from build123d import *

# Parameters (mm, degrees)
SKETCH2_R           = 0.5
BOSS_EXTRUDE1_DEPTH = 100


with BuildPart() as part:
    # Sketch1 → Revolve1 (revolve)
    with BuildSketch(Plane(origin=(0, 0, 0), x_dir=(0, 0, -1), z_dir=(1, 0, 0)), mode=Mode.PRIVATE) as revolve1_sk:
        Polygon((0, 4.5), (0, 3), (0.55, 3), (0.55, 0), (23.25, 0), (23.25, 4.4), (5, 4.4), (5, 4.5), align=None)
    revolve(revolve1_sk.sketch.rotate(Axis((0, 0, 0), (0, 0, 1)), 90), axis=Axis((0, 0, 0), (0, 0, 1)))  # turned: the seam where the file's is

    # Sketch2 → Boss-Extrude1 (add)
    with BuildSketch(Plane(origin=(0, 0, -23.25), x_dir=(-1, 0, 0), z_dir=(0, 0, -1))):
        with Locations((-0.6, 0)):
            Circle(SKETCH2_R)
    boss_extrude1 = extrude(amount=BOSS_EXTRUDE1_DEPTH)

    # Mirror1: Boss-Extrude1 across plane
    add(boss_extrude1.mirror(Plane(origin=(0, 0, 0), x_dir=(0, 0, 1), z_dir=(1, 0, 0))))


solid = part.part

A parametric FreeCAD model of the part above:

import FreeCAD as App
import Part
import Sketcher
Q = App.Units.Quantity


def add_polygon(sketch, points):
    """Adds a closed chain of lines whose ends are joined by coincident constraints."""
    first, n = sketch.GeometryCount, len(points)
    for a, b in zip(points, points[1:] + points[:1]):
        sketch.addGeometry(Part.LineSegment(App.Vector(*a, 0), App.Vector(*b, 0)), False)
    for i in range(n):
        sketch.addConstraint(Sketcher.Constraint("Coincident", first + i, 2, first + (i + 1) % n, 1))

doc = App.newDocument("Part")
params = doc.addObject("Spreadsheet::Sheet", "Params")
for row, (alias, value) in enumerate([
    ("sketch1_width", "3 mm"),
    ("sketch1_height", "5 mm"),
    ("sketch1_width2", "1.5 mm"),
    ("sketch1_width3", "4.4 mm"),
    ("sketch1_height2", "22.7 mm"),
    ("revolution_angle", "360 deg"),
    ("sketch2_diameter", "1 mm"),
    ("pad1_length", "100 mm"),
], start=1):
    params.set(f"A{row}", alias)
    params.set(f"B{row}", "=" + value)
    params.setAlias(f"B{row}", alias)

body = doc.addObject("PartDesign::Body", "Body")

# Sketch on YZ plane
sketch1 = body.newObject("Sketcher::SketchObject", "Sketch")
sketch1.AttachmentSupport = (doc.getObject("YZ_Plane"), [""])
sketch1.MapMode = "FlatFace"
add_polygon(sketch1, [(4.5, 0), (3, 0), (3, -0.55), (0, -0.55), (0, -23.25), (4.4, -23.25), (4.4, -5), (4.5, -5)])  # lines 0-7
sketch1.addConstraint([
    Sketcher.Constraint("Horizontal", 0),
    Sketcher.Constraint("Vertical", 1),
    Sketcher.Constraint("Horizontal", 2),
    Sketcher.Constraint("Vertical", 3),
    Sketcher.Constraint("Horizontal", 4),
    Sketcher.Constraint("Vertical", 5),
    Sketcher.Constraint("Horizontal", 6),
    Sketcher.Constraint("Vertical", 7),
    Sketcher.Constraint("PointOnObject", 0, 2, -1),
    Sketcher.Constraint("PointOnObject", 2, 2, -2),
    Sketcher.Constraint("DistanceX", 2, 2, 2, 1, Q("3 mm")),
    Sketcher.Constraint("DistanceY", 7, 1, 7, 2, Q("5 mm")),
    Sketcher.Constraint("DistanceX", 0, 2, 0, 1, Q("1.5 mm")),
    Sketcher.Constraint("DistanceX", 4, 1, 4, 2, Q("4.4 mm")),
    Sketcher.Constraint("DistanceY", 3, 2, 3, 1, Q("22.7 mm")),
    Sketcher.Constraint("DistanceY", 1, 2, 1, 1, Q("0.55 mm")),
])
sketch1.setExpression("Constraints[18]", "Params.sketch1_width")
sketch1.setExpression("Constraints[19]", "Params.sketch1_height")
sketch1.setExpression("Constraints[20]", "Params.sketch1_width2")
sketch1.setExpression("Constraints[21]", "Params.sketch1_width3")
sketch1.setExpression("Constraints[22]", "Params.sketch1_height2")
revolution = body.newObject("PartDesign::Revolution", "Revolution")
revolution.Profile = sketch1
revolution.ReferenceAxis = (sketch1, ["V_Axis"])
revolution.setExpression("Angle", "Params.revolution_angle")

# Sketch on XY plane
sketch2 = body.newObject("Sketcher::SketchObject", "Sketch001")
sketch2.AttachmentSupport = (doc.getObject("XY_Plane"), [""])
sketch2.MapMode = "FlatFace"
sketch2.AttachmentOffset = App.Placement(App.Vector(0, 0, -23.25), App.Rotation())
sketch2.addGeometry(Part.Circle(App.Vector(0.6, 0, 0), App.Vector(0, 0, 1), 0.5), False)
sketch2.addConstraint([
    Sketcher.Constraint("PointOnObject", 0, 3, -1),
    Sketcher.Constraint("Diameter", 0, Q("1 mm")),
    Sketcher.Constraint("DistanceX", -1, 1, 0, 3, Q("0.6 mm")),
])
sketch2.setExpression("Constraints[1]", "Params.sketch2_diameter")
pad1 = body.newObject("PartDesign::Pad", "Pad")
pad1.Profile = sketch2
pad1.setExpression("Length", "Params.pad1_length")
pad1.Reversed = True
doc.recompute()

mirrored = body.newObject("PartDesign::Mirrored", "Mirrored")
mirrored.Originals = [pad1]
mirrored.MirrorPlane = (doc.getObject("YZ_Plane"), [""])
body.Tip = mirrored

doc.recompute()
